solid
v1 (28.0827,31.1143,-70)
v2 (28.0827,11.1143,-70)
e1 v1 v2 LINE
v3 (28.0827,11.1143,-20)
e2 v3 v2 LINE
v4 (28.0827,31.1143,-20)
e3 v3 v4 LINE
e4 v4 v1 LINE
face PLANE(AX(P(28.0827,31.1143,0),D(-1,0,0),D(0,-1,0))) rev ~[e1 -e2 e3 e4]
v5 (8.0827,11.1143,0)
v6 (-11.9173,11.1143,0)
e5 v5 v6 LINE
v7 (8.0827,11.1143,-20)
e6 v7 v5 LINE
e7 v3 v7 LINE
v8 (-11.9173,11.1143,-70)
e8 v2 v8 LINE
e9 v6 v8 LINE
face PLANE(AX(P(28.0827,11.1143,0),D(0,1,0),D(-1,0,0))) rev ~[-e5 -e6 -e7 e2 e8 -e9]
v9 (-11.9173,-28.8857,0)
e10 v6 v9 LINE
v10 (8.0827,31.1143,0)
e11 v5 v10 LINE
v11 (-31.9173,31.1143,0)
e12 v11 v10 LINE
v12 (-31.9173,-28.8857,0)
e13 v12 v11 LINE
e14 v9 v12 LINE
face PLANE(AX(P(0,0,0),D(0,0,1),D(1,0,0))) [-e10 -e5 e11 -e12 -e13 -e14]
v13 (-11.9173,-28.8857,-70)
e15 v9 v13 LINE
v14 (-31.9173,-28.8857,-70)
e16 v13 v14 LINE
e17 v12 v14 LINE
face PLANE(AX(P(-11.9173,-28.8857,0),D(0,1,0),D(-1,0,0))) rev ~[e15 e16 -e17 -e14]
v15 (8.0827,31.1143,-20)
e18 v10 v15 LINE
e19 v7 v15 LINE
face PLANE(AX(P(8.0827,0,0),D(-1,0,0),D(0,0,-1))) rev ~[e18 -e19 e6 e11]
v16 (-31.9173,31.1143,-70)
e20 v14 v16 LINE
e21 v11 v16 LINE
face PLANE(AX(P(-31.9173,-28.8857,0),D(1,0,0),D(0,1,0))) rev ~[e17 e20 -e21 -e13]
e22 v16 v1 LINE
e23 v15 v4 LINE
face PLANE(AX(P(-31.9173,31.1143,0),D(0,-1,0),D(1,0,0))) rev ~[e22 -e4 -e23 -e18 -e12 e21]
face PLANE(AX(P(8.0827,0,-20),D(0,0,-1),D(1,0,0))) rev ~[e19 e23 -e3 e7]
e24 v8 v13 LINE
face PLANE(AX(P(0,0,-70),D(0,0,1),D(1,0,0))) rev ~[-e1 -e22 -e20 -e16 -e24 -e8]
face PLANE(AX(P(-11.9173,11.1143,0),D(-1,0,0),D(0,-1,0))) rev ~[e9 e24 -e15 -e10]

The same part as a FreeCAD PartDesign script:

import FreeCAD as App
import Part
import Sketcher

doc = App.newDocument("Part")
body = doc.addObject("PartDesign::Body", "Body")

sketch1 = doc.addObject("Sketcher::SketchObject", "Sketch")
body.addObject(sketch1)
sketch1.AttachmentSupport = (doc.XY_Plane, [""])
sketch1.MapMode = "FlatFace"
sketch1.addGeometry([
    Part.LineSegment(App.Vector(-32, 31, 0), App.Vector(-32, -29, 0)),
    Part.LineSegment(App.Vector(-32, -29, 0), App.Vector(-12, -29, 0)),
    Part.LineSegment(App.Vector(-12, -29, 0), App.Vector(-12, 11, 0)),
    Part.LineSegment(App.Vector(-12, 11, 0), App.Vector(28, 11, 0)),
    Part.LineSegment(App.Vector(28, 11, 0), App.Vector(28, 31, 0)),
    Part.LineSegment(App.Vector(28, 31, 0), App.Vector(-32, 31, 0)),
], False)
sketch1.addConstraint([
    Sketcher.Constraint("Coincident", 0, 2, 1, 1),
    Sketcher.Constraint("Coincident", 1, 2, 2, 1),
    Sketcher.Constraint("Coincident", 2, 2, 3, 1),
    Sketcher.Constraint("Coincident", 3, 2, 4, 1),
    Sketcher.Constraint("Coincident", 4, 2, 5, 1),
    Sketcher.Constraint("Coincident", 5, 2, 0, 1),
    Sketcher.Constraint("Vertical", 0),
    Sketcher.Constraint("Horizontal", 1),
    Sketcher.Constraint("Vertical", 2),
    Sketcher.Constraint("Horizontal", 3),
    Sketcher.Constraint("Vertical", 4),
    Sketcher.Constraint("Horizontal", 5),
    Sketcher.Constraint("Equal", 5, 0),
    Sketcher.Constraint("Equal", 3, 2),
    Sketcher.Constraint("DistanceX", 1, 1, 1, 2, 20.0),
    Sketcher.Constraint("DistanceX", 5, 2, 5, 1, 60.0),
    Sketcher.Constraint("DistanceX", 0, 2, -1, 1, 31.9173),
    Sketcher.Constraint("DistanceY", 0, 2, -1, 1, 28.8857),
])
pad1 = doc.addObject("PartDesign::Pad", "Pad")
body.addObject(pad1)
pad1.Profile = sketch1
pad1.Length = 70
pad1.Reversed = True

sketch2 = doc.addObject("Sketcher::SketchObject", "Sketch001")
body.addObject(sketch2)
sketch2.AttachmentSupport = (doc.XZ_Plane, [""])
sketch2.MapMode = "FlatFace"
sketch2.addGeometry([
    Part.LineSegment(App.Vector(8, 0, 0), App.Vector(28, 0, 0)),
    Part.LineSegment(App.Vector(28, 0, 0), App.Vector(28, -20, 0)),
    Part.LineSegment(App.Vector(28, -20, 0), App.Vector(8, -20, 0)),
    Part.LineSegment(App.Vector(8, -20, 0), App.Vector(8, 0, 0)),
], False)
sketch2.addConstraint([
    Sketcher.Constraint("Coincident", 0, 2, 1, 1),
    Sketcher.Constraint("Coincident", 1, 2, 2, 1),
    Sketcher.Constraint("Coincident", 2, 2, 3, 1),
    Sketcher.Constraint("Coincident", 3, 2, 0, 1),
    Sketcher.Constraint("Horizontal", 0),
    Sketcher.Constraint("Vertical", 1),
    Sketcher.Constraint("Horizontal", 2),
    Sketcher.Constraint("Vertical", 3),
    Sketcher.Constraint("PointOnObject", 0, 2, -1),
    Sketcher.Constraint("Equal", 2, 1),
    Sketcher.Constraint("DistanceX", 0, 1, 0, 2, 20.0),
    Sketcher.Constraint("DistanceX", -1, 1, 0, 2, 28.0827),
])
pocket1 = doc.addObject("PartDesign::Pocket", "Pocket")
body.addObject(pocket1)
pocket1.Profile = sketch2
pocket1.Length = 70

doc.recompute()
